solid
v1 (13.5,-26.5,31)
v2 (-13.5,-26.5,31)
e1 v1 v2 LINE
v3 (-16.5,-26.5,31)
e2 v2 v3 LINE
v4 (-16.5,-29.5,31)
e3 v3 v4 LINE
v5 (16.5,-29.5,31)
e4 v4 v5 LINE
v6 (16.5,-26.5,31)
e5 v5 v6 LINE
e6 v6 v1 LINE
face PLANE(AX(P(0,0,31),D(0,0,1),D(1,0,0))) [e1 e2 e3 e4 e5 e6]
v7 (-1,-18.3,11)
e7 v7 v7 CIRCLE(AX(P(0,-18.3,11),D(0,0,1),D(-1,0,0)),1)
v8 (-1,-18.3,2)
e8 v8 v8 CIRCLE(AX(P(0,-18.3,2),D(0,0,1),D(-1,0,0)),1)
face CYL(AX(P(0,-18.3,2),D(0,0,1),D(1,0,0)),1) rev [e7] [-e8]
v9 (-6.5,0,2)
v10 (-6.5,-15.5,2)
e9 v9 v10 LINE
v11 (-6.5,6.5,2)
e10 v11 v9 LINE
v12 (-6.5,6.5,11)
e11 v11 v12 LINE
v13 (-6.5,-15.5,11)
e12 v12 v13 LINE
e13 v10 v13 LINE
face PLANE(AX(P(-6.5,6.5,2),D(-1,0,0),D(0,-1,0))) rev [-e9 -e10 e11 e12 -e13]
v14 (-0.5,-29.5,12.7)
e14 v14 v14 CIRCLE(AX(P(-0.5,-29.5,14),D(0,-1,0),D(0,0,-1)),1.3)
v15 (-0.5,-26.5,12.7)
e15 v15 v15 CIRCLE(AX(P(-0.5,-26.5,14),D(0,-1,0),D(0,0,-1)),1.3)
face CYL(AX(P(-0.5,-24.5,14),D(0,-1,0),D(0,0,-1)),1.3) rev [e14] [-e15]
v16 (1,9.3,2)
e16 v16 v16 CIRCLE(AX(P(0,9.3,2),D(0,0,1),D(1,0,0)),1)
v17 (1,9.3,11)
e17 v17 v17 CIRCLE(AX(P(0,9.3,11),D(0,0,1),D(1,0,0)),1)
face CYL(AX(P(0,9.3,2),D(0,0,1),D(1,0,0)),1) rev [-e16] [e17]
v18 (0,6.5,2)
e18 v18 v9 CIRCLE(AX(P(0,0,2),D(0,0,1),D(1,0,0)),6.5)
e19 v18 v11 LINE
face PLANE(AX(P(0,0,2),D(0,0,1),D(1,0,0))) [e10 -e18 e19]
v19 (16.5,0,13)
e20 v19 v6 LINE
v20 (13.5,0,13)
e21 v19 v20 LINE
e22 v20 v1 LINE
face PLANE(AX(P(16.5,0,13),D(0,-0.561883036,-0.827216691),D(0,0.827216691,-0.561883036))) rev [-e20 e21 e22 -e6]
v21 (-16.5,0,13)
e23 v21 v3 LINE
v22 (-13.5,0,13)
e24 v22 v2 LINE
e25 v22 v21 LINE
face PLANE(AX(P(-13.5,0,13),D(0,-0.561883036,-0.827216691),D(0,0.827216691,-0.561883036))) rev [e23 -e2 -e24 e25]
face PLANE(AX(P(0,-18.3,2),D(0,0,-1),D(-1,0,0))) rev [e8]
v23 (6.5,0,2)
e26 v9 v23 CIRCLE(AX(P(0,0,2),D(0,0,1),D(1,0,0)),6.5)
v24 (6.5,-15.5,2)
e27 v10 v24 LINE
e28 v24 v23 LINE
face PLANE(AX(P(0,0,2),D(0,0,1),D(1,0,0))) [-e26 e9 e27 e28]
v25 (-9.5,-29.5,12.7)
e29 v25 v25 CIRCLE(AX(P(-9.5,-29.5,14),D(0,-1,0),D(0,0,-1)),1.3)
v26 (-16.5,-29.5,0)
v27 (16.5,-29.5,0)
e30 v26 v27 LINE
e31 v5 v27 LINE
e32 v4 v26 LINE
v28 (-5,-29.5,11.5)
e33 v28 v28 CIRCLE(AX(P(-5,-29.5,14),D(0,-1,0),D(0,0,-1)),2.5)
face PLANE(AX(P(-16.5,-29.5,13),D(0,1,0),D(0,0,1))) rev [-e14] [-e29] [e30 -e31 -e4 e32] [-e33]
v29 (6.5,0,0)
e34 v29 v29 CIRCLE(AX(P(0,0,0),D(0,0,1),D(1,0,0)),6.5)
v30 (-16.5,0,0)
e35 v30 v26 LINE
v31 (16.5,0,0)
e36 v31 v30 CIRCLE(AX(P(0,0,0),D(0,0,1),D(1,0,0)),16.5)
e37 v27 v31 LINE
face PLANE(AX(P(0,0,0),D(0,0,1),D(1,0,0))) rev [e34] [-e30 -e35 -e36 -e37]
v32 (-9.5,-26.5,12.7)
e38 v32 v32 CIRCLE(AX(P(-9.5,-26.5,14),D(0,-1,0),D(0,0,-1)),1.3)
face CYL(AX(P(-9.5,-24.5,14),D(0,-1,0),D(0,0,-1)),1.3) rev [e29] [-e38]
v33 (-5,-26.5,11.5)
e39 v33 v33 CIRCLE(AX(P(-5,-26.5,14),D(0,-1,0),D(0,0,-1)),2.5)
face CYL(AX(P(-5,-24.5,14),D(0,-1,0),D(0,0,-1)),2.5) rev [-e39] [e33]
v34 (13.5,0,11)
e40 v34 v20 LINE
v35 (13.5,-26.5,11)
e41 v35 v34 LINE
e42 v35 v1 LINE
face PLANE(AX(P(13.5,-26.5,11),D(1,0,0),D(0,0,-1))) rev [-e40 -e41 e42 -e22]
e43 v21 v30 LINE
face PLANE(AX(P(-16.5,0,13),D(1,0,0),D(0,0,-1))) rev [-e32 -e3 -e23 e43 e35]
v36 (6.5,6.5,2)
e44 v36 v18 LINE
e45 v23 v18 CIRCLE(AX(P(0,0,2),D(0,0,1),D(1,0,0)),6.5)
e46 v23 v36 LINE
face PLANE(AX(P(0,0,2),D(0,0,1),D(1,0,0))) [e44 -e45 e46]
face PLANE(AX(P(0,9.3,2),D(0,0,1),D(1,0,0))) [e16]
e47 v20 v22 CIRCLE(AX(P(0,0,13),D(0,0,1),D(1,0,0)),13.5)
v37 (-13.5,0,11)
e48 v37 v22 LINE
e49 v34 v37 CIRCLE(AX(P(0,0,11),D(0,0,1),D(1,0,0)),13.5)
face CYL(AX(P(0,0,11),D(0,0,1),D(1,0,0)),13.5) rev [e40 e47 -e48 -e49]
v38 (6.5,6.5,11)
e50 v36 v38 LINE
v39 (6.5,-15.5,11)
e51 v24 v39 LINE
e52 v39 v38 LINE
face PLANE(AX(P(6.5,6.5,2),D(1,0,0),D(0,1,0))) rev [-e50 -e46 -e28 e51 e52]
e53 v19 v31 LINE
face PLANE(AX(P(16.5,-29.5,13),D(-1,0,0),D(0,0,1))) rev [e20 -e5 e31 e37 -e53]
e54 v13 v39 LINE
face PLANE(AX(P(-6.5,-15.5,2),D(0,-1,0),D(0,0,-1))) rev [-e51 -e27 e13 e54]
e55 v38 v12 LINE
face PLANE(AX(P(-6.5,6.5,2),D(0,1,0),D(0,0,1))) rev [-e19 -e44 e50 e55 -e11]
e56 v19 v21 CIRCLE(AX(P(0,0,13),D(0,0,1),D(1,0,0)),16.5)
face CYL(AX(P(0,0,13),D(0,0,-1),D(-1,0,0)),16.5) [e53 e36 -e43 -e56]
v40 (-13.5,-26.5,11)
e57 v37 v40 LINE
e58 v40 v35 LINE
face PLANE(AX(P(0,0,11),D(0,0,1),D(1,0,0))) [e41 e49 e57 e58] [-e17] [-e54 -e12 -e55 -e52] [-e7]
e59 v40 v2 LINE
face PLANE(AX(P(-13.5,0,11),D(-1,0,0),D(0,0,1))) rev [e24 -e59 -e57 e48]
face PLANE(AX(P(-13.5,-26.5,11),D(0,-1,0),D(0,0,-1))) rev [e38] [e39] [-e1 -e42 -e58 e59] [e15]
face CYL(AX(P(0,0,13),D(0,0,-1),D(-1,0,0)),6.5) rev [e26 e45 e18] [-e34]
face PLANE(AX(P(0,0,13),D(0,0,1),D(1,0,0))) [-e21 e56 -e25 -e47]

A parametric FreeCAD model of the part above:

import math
import FreeCAD as App
import Part
import Sketcher
from FreeCAD import Vector
Q = App.Units.Quantity

doc = App.newDocument("Part")
body = doc.addObject("PartDesign::Body", "Body")

sketch1 = body.newObject("Sketcher::SketchObject", "Sketch")
sketch1.AttachmentSupport = (doc.getObject("XY_Plane"), [""])
sketch1.MapMode = "FlatFace"
sketch1.addGeometry(Part.LineSegment(Vector(-16, 0, 0), Vector(-16, -30, 0)), False)
sketch1.addGeometry(Part.LineSegment(Vector(-16, -30, 0), Vector(16, -30, 0)), False)
sketch1.addGeometry(Part.LineSegment(Vector(16, -30, 0), Vector(16, 0, 0)), False)
sketch1.addGeometry(Part.ArcOfCircle(Part.Circle(Vector(0, 0, 0), Vector(0, 0, 1), 16), math.radians(0), math.radians(180)), False)
sketch1.addGeometry(Part.Circle(Vector(0, 0, 0), Vector(0, 0, 1), 6), False)
sketch1.addConstraint(Sketcher.Constraint("Coincident", 0, 2, 1, 1))
sketch1.addConstraint(Sketcher.Constraint("Coincident", 1, 2, 2, 1))
sketch1.addConstraint(Sketcher.Constraint("Tangent", 2, 2, 3, 1))
sketch1.addConstraint(Sketcher.Constraint("Tangent", 3, 2, 0, 1))
sketch1.addConstraint(Sketcher.Constraint("Vertical", 0))
sketch1.addConstraint(Sketcher.Constraint("Horizontal", 1))
sketch1.addConstraint(Sketcher.Constraint("Vertical", 2))
sketch1.addConstraint(Sketcher.Constraint("Coincident", 3, 3, -1, 1))
sketch1.addConstraint(Sketcher.Constraint("Coincident", 4, 3, -1, 1))
sketch1.addConstraint(Sketcher.Constraint("Diameter", 4, Q("13 mm")))
sketch1.addConstraint(Sketcher.Constraint("Radius", 3, Q("16.5 mm")))
sketch1.addConstraint(Sketcher.Constraint("DistanceY", 0, 2, 0, 1, Q("29.5 mm")))
pad1 = body.newObject("PartDesign::Pad", "Pad")
pad1.Profile = sketch1
pad1.Length = 13

sketch2 = body.newObject("Sketcher::SketchObject", "Sketch001")
sketch2.AttachmentSupport = (doc.getObject("XY_Plane"), [""])
sketch2.MapMode = "FlatFace"
sketch2.AttachmentOffset = App.Placement(Vector(0, 0, 13), App.Rotation())
sketch2.addGeometry(Part.LineSegment(Vector(-14, -26, 0), Vector(14, -26, 0)), False)
sketch2.addGeometry(Part.LineSegment(Vector(14, -26, 0), Vector(14, 0, 0)), False)
sketch2.addGeometry(Part.ArcOfCircle(Part.Circle(Vector(0, 0, 0), Vector(0, 0, 1), 14), math.radians(0), math.radians(180)), False)
sketch2.addGeometry(Part.LineSegment(Vector(-14, 0, 0), Vector(-14, -26, 0)), False)
sketch2.addConstraint(Sketcher.Constraint("Coincident", 0, 2, 1, 1))
sketch2.addConstraint(Sketcher.Constraint("Tangent", 1, 2, 2, 1))
sketch2.addConstraint(Sketcher.Constraint("Tangent", 2, 2, 3, 1))
sketch2.addConstraint(Sketcher.Constraint("Coincident", 3, 2, 0, 1))
sketch2.addConstraint(Sketcher.Constraint("Horizontal", 0))
sketch2.addConstraint(Sketcher.Constraint("Vertical", 1))
sketch2.addConstraint(Sketcher.Constraint("Vertical", 3))
sketch2.addConstraint(Sketcher.Constraint("Coincident", 2, 3, -1, 1))
sketch2.addConstraint(Sketcher.Constraint("Radius", 2, Q("13.5 mm")))
sketch2.addConstraint(Sketcher.Constraint("DistanceY", 1, 1, 1, 2, Q("26.5 mm")))
pocket1 = body.newObject("PartDesign::Pocket", "Pocket")
pocket1.Profile = sketch2
pocket1.Length = 2

sketch3 = body.newObject("Sketcher::SketchObject", "Sketch002")
sketch3.AttachmentSupport = (doc.getObject("XY_Plane"), [""])
sketch3.MapMode = "FlatFace"
sketch3.AttachmentOffset = App.Placement(Vector(0, 0, 11), App.Rotation())
sketch3.addGeometry(Part.Circle(Vector(0, 9.3, 0), Vector(0, 0, 1), 1), False)
sketch3.addGeometry(Part.Circle(Vector(0, -18.3, 0), Vector(0, 0, 1), 1), False)
sketch3.addGeometry(Part.LineSegment(Vector(-6.5, 6.5, 0), Vector(-6.5, -15.5, 0)), False)
sketch3.addGeometry(Part.LineSegment(Vector(-6.5, -15.5, 0), Vector(6.5, -15.5, 0)), False)
sketch3.addGeometry(Part.LineSegment(Vector(6.5, -15.5, 0), Vector(6.5, 6.5, 0)), False)
sketch3.addGeometry(Part.LineSegment(Vector(6.5, 6.5, 0), Vector(-6.5, 6.5, 0)), False)
sketch3.addConstraint(Sketcher.Constraint("Coincident", 2, 2, 3, 1))
sketch3.addConstraint(Sketcher.Constraint("Coincident", 3, 2, 4, 1))
sketch3.addConstraint(Sketcher.Constraint("Coincident", 4, 2, 5, 1))
sketch3.addConstraint(Sketcher.Constraint("Coincident", 5, 2, 2, 1))
sketch3.addConstraint(Sketcher.Constraint("Vertical", 2))
sketch3.addConstraint(Sketcher.Constraint("Horizontal", 3))
sketch3.addConstraint(Sketcher.Constraint("Vertical", 4))
sketch3.addConstraint(Sketcher.Constraint("Horizontal", 5))
sketch3.addConstraint(Sketcher.Constraint("Equal", 0, 1))
sketch3.addConstraint(Sketcher.Constraint("PointOnObject", 0, 3, -2))
sketch3.addConstraint(Sketcher.Constraint("PointOnObject", 1, 3, -2))
sketch3.addConstraint(Sketcher.Constraint("Diameter", 0, Q("2 mm")))
sketch3.addConstraint(Sketcher.Constraint("DistanceX", 3, 1, 3, 2, Q("13 mm")))
sketch3.addConstraint(Sketcher.Constraint("DistanceY", 2, 2, 2, 1, Q("22 mm")))
sketch3.addConstraint(Sketcher.Constraint("DistanceY", -1, 1, 0, 3, Q("9.3 mm")))
sketch3.addConstraint(Sketcher.Constraint("DistanceY", 1, 3, -1, 1, Q("18.3 mm")))
sketch3.addConstraint(Sketcher.Constraint("DistanceX", 2, 2, -1, 1, Q("6.5 mm")))
sketch3.addConstraint(Sketcher.Constraint("DistanceY", 2, 2, -1, 1, Q("15.5 mm")))
pocket2 = body.newObject("PartDesign::Pocket", "Pocket001")
pocket2.Profile = sketch3
pocket2.Length = 9

sketch4 = body.newObject("Sketcher::SketchObject", "Sketch003")
sketch4.AttachmentSupport = (doc.getObject("XY_Plane"), [""])
sketch4.MapMode = "FlatFace"
sketch4.AttachmentOffset = App.Placement(Vector(0, 0, 13), App.Rotation())
sketch4.addGeometry(Part.LineSegment(Vector(-16.5, -26.5, 0), Vector(-16.5, -29.5, 0)), False)
sketch4.addGeometry(Part.LineSegment(Vector(-16.5, -29.5, 0), Vector(16.5, -29.5, 0)), False)
sketch4.addGeometry(Part.LineSegment(Vector(16.5, -29.5, 0), Vector(16.5, -26.5, 0)), False)
sketch4.addGeometry(Part.LineSegment(Vector(16.5, -26.5, 0), Vector(-16.5, -26.5, 0)), False)
sketch4.addConstraint(Sketcher.Constraint("Coincident", 0, 2, 1, 1))
sketch4.addConstraint(Sketcher.Constraint("Coincident", 1, 2, 2, 1))
sketch4.addConstraint(Sketcher.Constraint("Coincident", 2, 2, 3, 1))
sketch4.addConstraint(Sketcher.Constraint("Coincident", 3, 2, 0, 1))
sketch4.addConstraint(Sketcher.Constraint("Vertical", 0))
sketch4.addConstraint(Sketcher.Constraint("Horizontal", 1))
sketch4.addConstraint(Sketcher.Constraint("Vertical", 2))
sketch4.addConstraint(Sketcher.Constraint("Horizontal", 3))
sketch4.addConstraint(Sketcher.Constraint("DistanceX", 1, 1, 1, 2, Q("33 mm")))
sketch4.addConstraint(Sketcher.Constraint("DistanceY", 0, 2, 0, 1, Q("3 mm")))
sketch4.addConstraint(Sketcher.Constraint("DistanceX", 0, 2, -1, 1, Q("16.5 mm")))
sketch4.addConstraint(Sketcher.Constraint("DistanceY", 0, 2, -1, 1, Q("29.5 mm")))
pad2 = body.newObject("PartDesign::Pad", "Pad001")
pad2.Profile = sketch4
pad2.Length = 18

sketch5 = body.newObject("Sketcher::SketchObject", "Sketch004")
sketch5.AttachmentSupport = (doc.getObject("YZ_Plane"), [""])
sketch5.MapMode = "FlatFace"
sketch5.AttachmentOffset = App.Placement(Vector(0, 0, -15), App.Rotation())
sketch5.addGeometry(Part.LineSegment(Vector(0, 13, 0), Vector(-26, 31, 0)), False)
sketch5.addGeometry(Part.LineSegment(Vector(-26, 31, 0), Vector(-26, 13, 0)), False)
sketch5.addGeometry(Part.LineSegment(Vector(-26, 13, 0), Vector(0, 13, 0)), False)
sketch5.addConstraint(Sketcher.Constraint("Coincident", 0, 2, 1, 1))
sketch5.addConstraint(Sketcher.Constraint("Coincident", 1, 2, 2, 1))
sketch5.addConstraint(Sketcher.Constraint("Coincident", 2, 2, 0, 1))
sketch5.addConstraint(Sketcher.Constraint("Vertical", 1))
sketch5.addConstraint(Sketcher.Constraint("Horizontal", 2))
sketch5.addConstraint(Sketcher.Constraint("PointOnObject", 2, 2, -2))
sketch5.addConstraint(Sketcher.Constraint("DistanceY", 1, 2, 1, 1, Q("18 mm")))
sketch5.addConstraint(Sketcher.Constraint("DistanceX", 2, 1, 2, 2, Q("26.5 mm")))
sketch5.addConstraint(Sketcher.Constraint("DistanceY", -1, 1, 0, 2, Q("31 mm")))
pad3 = body.newObject("PartDesign::Pad", "Pad002")
pad3.Profile = sketch5
pad3.Length = 3
pad3.Midplane = True

sketch6 = body.newObject("Sketcher::SketchObject", "Sketch005")
sketch6.AttachmentSupport = (doc.getObject("YZ_Plane"), [""])
sketch6.MapMode = "FlatFace"
sketch6.AttachmentOffset = App.Placement(Vector(0, 0, 15), App.Rotation())
sketch6.addGeometry(Part.LineSegment(Vector(0, 13, 0), Vector(-26, 31, 0)), False)
sketch6.addGeometry(Part.LineSegment(Vector(-26, 31, 0), Vector(-26, 13, 0)), False)
sketch6.addGeometry(Part.LineSegment(Vector(-26, 13, 0), Vector(0, 13, 0)), False)
sketch6.addConstraint(Sketcher.Constraint("Coincident", 0, 2, 1, 1))
sketch6.addConstraint(Sketcher.Constraint("Coincident", 1, 2, 2, 1))
sketch6.addConstraint(Sketcher.Constraint("Coincident", 2, 2, 0, 1))
sketch6.addConstraint(Sketcher.Constraint("Vertical", 1))
sketch6.addConstraint(Sketcher.Constraint("Horizontal", 2))
sketch6.addConstraint(Sketcher.Constraint("PointOnObject", 2, 2, -2))
sketch6.addConstraint(Sketcher.Constraint("DistanceY", 1, 2, 1, 1, Q("18 mm")))
sketch6.addConstraint(Sketcher.Constraint("DistanceX", 2, 1, 2, 2, Q("26.5 mm")))
sketch6.addConstraint(Sketcher.Constraint("DistanceY", -1, 1, 0, 2, Q("31 mm")))
pad4 = body.newObject("PartDesign::Pad", "Pad003")
pad4.Profile = sketch6
pad4.Length = 3
pad4.Midplane = True

sketch7 = body.newObject("Sketcher::SketchObject", "Sketch006")
sketch7.AttachmentSupport = (doc.getObject("XZ_Plane"), [""])
sketch7.MapMode = "FlatFace"
sketch7.AttachmentOffset = App.Placement(Vector(0, 0, 29.5), App.Rotation())
sketch7.addGeometry(Part.Circle(Vector(-5, 14, 0), Vector(0, 0, 1), 2.5), False)
sketch7.addGeometry(Part.Circle(Vector(-0.5, 14, 0), Vector(0, 0, 1), 1.3), False)
sketch7.addGeometry(Part.Circle(Vector(-9.5, 14, 0), Vector(0, 0, 1), 1.3), False)
sketch7.addConstraint(Sketcher.Constraint("Equal", 1, 2))
sketch7.addConstraint(Sketcher.Constraint("Horizontal", 0, 3, 1, 3))
sketch7.addConstraint(Sketcher.Constraint("Horizontal", 1, 3, 2, 3))
sketch7.addConstraint(Sketcher.Constraint("Diameter", 0, Q("5 mm")))
sketch7.addConstraint(Sketcher.Constraint("Diameter", 1, Q("2.6 mm")))
sketch7.addConstraint(Sketcher.Constraint("DistanceX", 0, 3, -1, 1, Q("5 mm")))
sketch7.addConstraint(Sketcher.Constraint("DistanceY", -1, 1, 0, 3, Q("14 mm")))
sketch7.addConstraint(Sketcher.Constraint("DistanceX", 2, 3, 1, 3, Q("9 mm")))
sketch7.addConstraint(Sketcher.Constraint("DistanceX", 1, 3, -1, 1, Q("0.5 mm")))
pocket3 = body.newObject("PartDesign::Pocket", "Pocket002")
pocket3.Profile = sketch7
pocket3.Length = 5

doc.recompute()
